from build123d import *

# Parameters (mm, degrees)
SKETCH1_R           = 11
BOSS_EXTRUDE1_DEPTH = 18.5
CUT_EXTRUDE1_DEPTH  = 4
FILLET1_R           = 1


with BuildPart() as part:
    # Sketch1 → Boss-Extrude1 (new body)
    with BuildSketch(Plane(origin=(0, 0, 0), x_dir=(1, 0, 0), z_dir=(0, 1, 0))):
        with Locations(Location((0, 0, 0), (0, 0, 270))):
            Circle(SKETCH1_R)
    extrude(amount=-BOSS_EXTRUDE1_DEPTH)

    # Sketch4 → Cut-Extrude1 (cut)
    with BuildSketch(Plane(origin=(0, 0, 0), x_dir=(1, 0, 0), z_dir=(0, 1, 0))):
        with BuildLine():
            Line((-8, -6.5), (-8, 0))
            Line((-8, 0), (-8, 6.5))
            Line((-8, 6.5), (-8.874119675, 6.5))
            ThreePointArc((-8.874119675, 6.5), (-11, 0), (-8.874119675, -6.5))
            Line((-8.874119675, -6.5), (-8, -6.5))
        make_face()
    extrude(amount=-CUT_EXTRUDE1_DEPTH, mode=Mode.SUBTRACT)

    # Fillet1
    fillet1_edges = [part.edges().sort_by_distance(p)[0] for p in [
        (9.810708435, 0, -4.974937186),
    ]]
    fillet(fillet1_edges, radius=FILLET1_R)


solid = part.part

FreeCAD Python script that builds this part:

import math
import FreeCAD as App
import Part
import Sketcher
from FreeCAD import Vector


def edges_at(feature, points):
    """Names of the edges that pass closest to the given points."""
    edges = feature.Shape.Edges
    near = lambda p: min(range(len(edges)), key=lambda i: edges[i].distToShape(Part.Vertex(*p))[0])
    return sorted({f"Edge{near(p) + 1}" for p in points})

doc = App.newDocument("Part")
params = doc.addObject("Spreadsheet::Sheet", "Params")
for row, (alias, value) in enumerate([
    ("sketch1_diameter", "22 mm"),
    ("pad1_length", "18.5 mm"),
    ("sketch2_radius", "11 mm"),
    ("sketch2_height", "13 mm"),
    ("pocket1_length", "4 mm"),
    ("fillet_radius", "1 mm"),
], start=1):
    params.set(f"A{row}", alias)
    params.set(f"B{row}", "=" + value)
    params.setAlias(f"B{row}", alias)

body = doc.addObject("PartDesign::Body", "Body")

sketch1 = doc.addObject("Sketcher::SketchObject", "Sketch")
body.addObject(sketch1)
sketch1.AttachmentSupport = (doc.XZ_Plane, [""])
sketch1.MapMode = "FlatFace"
sketch1.addGeometry(Part.Circle(Vector(0, 0, 0), Vector(0, 0, 1), 11), False)
sketch1.addConstraint(Sketcher.Constraint("Coincident", 0, 3, -1, 1))
sketch1.addConstraint(Sketcher.Constraint("Diameter", 0, 22.0))
sketch1.setExpression("Constraints[1]", "Params.sketch1_diameter")
pad1 = doc.addObject("PartDesign::Pad", "Pad")
body.addObject(pad1)
pad1.Profile = sketch1
pad1.setExpression("Length", "Params.pad1_length")

sketch2 = doc.addObject("Sketcher::SketchObject", "Sketch001")
body.addObject(sketch2)
sketch2.AttachmentSupport = (doc.XZ_Plane, [""])
sketch2.MapMode = "FlatFace"
sketch2.addGeometry(Part.LineSegment(Vector(-8, 6.5, 0), Vector(-8, -6.5, 0)), False)
sketch2.addGeometry(Part.LineSegment(Vector(-8, -6.5, 0), Vector(-8.9, -6.5, 0)), False)
sketch2.addGeometry(Part.ArcOfCircle(Part.Circle(Vector(0, 0, 0), Vector(0, 0, 1), 11), math.radians(144), math.radians(216)), False)
sketch2.addGeometry(Part.LineSegment(Vector(-8.9, 6.5, 0), Vector(-8, 6.5, 0)), False)
sketch2.addConstraint(Sketcher.Constraint("Coincident", 0, 2, 1, 1))
sketch2.addConstraint(Sketcher.Constraint("Coincident", 1, 2, 2, 2))
sketch2.addConstraint(Sketcher.Constraint("Coincident", 2, 1, 3, 1))
sketch2.addConstraint(Sketcher.Constraint("Coincident", 3, 2, 0, 1))
sketch2.addConstraint(Sketcher.Constraint("Vertical", 0))
sketch2.addConstraint(Sketcher.Constraint("Horizontal", 1))
sketch2.addConstraint(Sketcher.Constraint("Horizontal", 3))
sketch2.addConstraint(Sketcher.Constraint("Coincident", 2, 3, -1, 1))
sketch2.addConstraint(Sketcher.Constraint("Vertical", 1, 2, 2, 1))
sketch2.addConstraint(Sketcher.Constraint("Radius", 2, 11.0))
sketch2.addConstraint(Sketcher.Constraint("DistanceY", 0, 2, 0, 1, 13.0))
sketch2.addConstraint(Sketcher.Constraint("DistanceX", 0, 2, -1, 1, 8.0))
sketch2.setExpression("Constraints[9]", "Params.sketch2_radius")
sketch2.setExpression("Constraints[10]", "Params.sketch2_height")
pocket1 = doc.addObject("PartDesign::Pocket", "Pocket")
body.addObject(pocket1)
pocket1.Profile = sketch2
pocket1.setExpression("Length", "Params.pocket1_length")
pocket1.Reversed = True
doc.recompute()

fillet = doc.addObject("PartDesign::Fillet", "Fillet")
body.addObject(fillet)
fillet.Base = (pocket1, edges_at(pocket1, [(9.811, 0, -4.975)]))
fillet.setExpression("Radius", "Params.fillet_radius")

doc.recompute()
